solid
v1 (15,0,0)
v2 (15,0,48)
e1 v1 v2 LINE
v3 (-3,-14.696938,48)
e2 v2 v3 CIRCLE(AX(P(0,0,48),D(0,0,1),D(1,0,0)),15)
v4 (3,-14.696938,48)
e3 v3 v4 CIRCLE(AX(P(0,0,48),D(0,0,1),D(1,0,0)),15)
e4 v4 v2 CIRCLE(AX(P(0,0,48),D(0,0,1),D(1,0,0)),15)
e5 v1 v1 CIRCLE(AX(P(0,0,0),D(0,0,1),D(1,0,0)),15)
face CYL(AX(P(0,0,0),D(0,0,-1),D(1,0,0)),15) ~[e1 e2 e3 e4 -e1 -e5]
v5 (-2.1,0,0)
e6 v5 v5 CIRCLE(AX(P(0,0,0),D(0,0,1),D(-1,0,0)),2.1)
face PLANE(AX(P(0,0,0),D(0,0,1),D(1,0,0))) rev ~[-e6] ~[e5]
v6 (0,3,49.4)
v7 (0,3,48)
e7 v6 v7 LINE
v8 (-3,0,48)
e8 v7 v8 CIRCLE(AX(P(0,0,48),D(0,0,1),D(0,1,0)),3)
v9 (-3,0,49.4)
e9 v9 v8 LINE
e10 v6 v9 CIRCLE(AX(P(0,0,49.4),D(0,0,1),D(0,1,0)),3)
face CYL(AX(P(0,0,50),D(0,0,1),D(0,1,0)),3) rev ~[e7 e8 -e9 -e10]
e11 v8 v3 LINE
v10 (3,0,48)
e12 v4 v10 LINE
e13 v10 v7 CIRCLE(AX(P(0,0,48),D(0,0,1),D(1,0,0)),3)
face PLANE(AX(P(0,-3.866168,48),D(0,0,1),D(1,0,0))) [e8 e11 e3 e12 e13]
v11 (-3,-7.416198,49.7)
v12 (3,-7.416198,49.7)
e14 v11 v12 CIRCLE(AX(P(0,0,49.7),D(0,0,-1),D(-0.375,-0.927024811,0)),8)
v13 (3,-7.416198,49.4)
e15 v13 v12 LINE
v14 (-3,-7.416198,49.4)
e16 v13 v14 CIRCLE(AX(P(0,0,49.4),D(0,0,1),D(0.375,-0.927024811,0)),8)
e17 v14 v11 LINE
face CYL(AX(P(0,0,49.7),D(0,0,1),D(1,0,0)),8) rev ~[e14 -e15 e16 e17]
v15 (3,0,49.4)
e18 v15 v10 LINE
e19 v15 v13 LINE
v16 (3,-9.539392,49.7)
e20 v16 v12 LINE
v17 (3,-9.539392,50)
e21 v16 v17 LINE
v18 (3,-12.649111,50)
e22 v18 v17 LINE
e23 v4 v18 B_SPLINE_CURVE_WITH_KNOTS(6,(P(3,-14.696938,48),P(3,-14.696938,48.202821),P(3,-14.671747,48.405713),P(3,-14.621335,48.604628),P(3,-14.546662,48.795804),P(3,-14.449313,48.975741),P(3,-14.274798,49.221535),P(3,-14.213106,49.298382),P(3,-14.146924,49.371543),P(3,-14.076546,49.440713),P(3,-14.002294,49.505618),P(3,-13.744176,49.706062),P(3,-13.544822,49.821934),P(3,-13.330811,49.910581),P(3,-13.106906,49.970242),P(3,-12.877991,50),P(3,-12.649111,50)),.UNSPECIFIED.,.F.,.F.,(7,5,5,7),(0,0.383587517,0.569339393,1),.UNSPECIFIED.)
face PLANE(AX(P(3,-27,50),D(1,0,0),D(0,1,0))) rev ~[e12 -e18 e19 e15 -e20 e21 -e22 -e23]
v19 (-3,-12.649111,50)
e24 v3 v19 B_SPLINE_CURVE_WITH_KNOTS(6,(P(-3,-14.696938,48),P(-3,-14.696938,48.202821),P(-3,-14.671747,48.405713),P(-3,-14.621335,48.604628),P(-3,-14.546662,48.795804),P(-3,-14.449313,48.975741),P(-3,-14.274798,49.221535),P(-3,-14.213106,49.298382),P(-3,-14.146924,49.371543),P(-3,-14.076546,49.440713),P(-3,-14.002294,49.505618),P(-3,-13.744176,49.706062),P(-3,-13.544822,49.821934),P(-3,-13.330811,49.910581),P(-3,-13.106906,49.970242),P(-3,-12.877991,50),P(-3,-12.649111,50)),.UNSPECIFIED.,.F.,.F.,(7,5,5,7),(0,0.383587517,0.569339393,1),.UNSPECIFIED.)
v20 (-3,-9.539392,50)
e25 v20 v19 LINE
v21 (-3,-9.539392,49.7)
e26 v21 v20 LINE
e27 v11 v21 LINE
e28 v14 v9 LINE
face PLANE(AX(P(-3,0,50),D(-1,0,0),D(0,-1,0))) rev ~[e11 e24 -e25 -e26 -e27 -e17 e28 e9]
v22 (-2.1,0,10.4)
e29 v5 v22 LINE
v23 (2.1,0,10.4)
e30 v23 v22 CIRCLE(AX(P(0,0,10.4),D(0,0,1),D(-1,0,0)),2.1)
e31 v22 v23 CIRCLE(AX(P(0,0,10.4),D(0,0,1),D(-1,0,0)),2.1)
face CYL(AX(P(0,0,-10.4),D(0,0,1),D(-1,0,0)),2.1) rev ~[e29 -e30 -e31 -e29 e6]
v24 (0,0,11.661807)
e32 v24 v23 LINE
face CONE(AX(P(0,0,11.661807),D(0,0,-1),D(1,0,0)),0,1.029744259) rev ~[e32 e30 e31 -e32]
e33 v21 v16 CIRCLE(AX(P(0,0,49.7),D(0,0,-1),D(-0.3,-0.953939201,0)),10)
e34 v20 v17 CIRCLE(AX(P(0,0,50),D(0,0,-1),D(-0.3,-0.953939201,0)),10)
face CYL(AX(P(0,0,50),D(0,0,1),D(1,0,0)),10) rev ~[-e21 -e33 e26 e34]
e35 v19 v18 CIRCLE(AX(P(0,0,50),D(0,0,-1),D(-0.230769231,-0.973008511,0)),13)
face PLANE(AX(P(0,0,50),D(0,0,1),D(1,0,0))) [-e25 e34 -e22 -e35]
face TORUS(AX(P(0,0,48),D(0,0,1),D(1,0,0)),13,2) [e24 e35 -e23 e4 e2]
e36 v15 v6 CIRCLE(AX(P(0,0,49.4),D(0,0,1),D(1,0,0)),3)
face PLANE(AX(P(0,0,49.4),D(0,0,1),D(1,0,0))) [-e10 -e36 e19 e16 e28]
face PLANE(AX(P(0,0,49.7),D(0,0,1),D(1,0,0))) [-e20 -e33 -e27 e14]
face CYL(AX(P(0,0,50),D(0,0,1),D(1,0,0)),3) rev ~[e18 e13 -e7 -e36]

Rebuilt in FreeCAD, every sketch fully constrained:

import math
import FreeCAD as App
import Part
import Sketcher


def edges_at(feature, points):
    """Names of the edges that pass closest to the given points."""
    edges = feature.Shape.Edges
    near = lambda p: min(range(len(edges)), key=lambda i: edges[i].distToShape(Part.Vertex(*p))[0])
    return sorted({f"Edge{near(p) + 1}" for p in points})

doc = App.newDocument("Part")
params = doc.addObject("Spreadsheet::Sheet", "Params")
for row, (alias, value) in enumerate([
    ("sketch1_diameter", "30 mm"),
    ("pad1_length", "50 mm"),
    ("fillet_radius", "2 mm"),
    ("sketch2_diameter", "20 mm"),
    ("pocket1_length", "0.3 mm"),
    ("sketch3_radius", "3 mm"),
    ("sketch3_height", "27 mm"),
    ("pocket2_length", "2 mm"),
    ("sketch4_diameter", "4.2 mm"),
    ("hole_diameter", "4.2 mm"),
    ("hole_depth", "10.4 mm"),
    ("sketch5_diameter", "16 mm"),
    ("pocket3_length", "0.3 mm"),
], start=1):
    params.set(f"A{row}", alias)
    params.set(f"B{row}", "=" + value)
    params.setAlias(f"B{row}", alias)

body = doc.addObject("PartDesign::Body", "Body")

# Sketch on XY plane
sketch1 = body.newObject("Sketcher::SketchObject", "Sketch")
sketch1.AttachmentSupport = (doc.getObject("XY_Plane"), [""])
sketch1.MapMode = "FlatFace"
sketch1.addGeometry(Part.Circle(App.Vector(0, 0, 0), App.Vector(0, 0, 1), 15), False)
sketch1.addConstraint([
    Sketcher.Constraint("Coincident", 0, 3, -1, 1),
    Sketcher.Constraint("Diameter", 0, 30.0),
])
sketch1.setExpression("Constraints[1]", "Params.sketch1_diameter")
pad1 = body.newObject("PartDesign::Pad", "Pad")
pad1.Profile = sketch1
pad1.setExpression("Length", "Params.pad1_length")
doc.recompute()

fillet = body.newObject("PartDesign::Fillet", "Fillet")
fillet.Base = (pad1, edges_at(pad1, [(-15, 0, 50)]))
fillet.setExpression("Radius", "Params.fillet_radius")

# Sketch on XY plane
sketch2 = body.newObject("Sketcher::SketchObject", "Sketch001")
sketch2.AttachmentSupport = (doc.getObject("XY_Plane"), [""])
sketch2.MapMode = "FlatFace"
sketch2.AttachmentOffset = App.Placement(App.Vector(0, 0, 50), App.Rotation())
sketch2.addGeometry(Part.Circle(App.Vector(0, 0, 0), App.Vector(0, 0, 1), 10), False)
sketch2.addConstraint([
    Sketcher.Constraint("Coincident", 0, 3, -1, 1),
    Sketcher.Constraint("Diameter", 0, 20.0),
])
sketch2.setExpression("Constraints[1]", "Params.sketch2_diameter")
pocket1 = body.newObject("PartDesign::Pocket", "Pocket")
pocket1.Profile = sketch2
pocket1.setExpression("Length", "Params.pocket1_length")

# Sketch on XY plane
sketch3 = body.newObject("Sketcher::SketchObject", "Sketch002")
sketch3.AttachmentSupport = (doc.getObject("XY_Plane"), [""])
sketch3.MapMode = "FlatFace"
sketch3.AttachmentOffset = App.Placement(App.Vector(0, 0, 50), App.Rotation())
sketch3.addGeometry([
    Part.LineSegment(App.Vector(-3, 0, 0), App.Vector(-3, -27, 0)),  # 0
    Part.LineSegment(App.Vector(-3, -27, 0), App.Vector(3, -27, 0)),  # 1
    Part.LineSegment(App.Vector(3, -27, 0), App.Vector(3, 0, 0)),  # 2
    Part.ArcOfCircle(Part.Circle(App.Vector(0, 0, 0), App.Vector(0, 0, 1), 3), math.radians(0), math.radians(90)),  # 3
    Part.ArcOfCircle(Part.Circle(App.Vector(0, 0, 0), App.Vector(0, 0, 1), 3), math.radians(90), math.radians(180)),  # 4
], False)
sketch3.addConstraint([
    Sketcher.Constraint("Coincident", 0, 2, 1, 1),
    Sketcher.Constraint("Coincident", 1, 2, 2, 1),
    Sketcher.Constraint("Tangent", 2, 2, 3, 1),
    Sketcher.Constraint("Tangent", 3, 2, 4, 1),
    Sketcher.Constraint("Tangent", 4, 2, 0, 1),
    Sketcher.Constraint("Vertical", 0),
    Sketcher.Constraint("Horizontal", 1),
    Sketcher.Constraint("Vertical", 2),
    Sketcher.Constraint("Coincident", 3, 3, -1, 1),
    Sketcher.Constraint("Equal", 3, 4),
    Sketcher.Constraint("PointOnObject", 3, 2, -2),
    Sketcher.Constraint("Radius", 3, 3.0),
    Sketcher.Constraint("DistanceY", 0, 2, 0, 1, 27.0),
])
sketch3.setExpression("Constraints[11]", "Params.sketch3_radius")
sketch3.setExpression("Constraints[12]", "Params.sketch3_height")
pocket2 = body.newObject("PartDesign::Pocket", "Pocket001")
pocket2.Profile = sketch3
pocket2.setExpression("Length", "Params.pocket2_length")

# Sketch on XY plane
sketch4 = body.newObject("Sketcher::SketchObject", "Sketch003")
sketch4.AttachmentSupport = (doc.getObject("XY_Plane"), [""])
sketch4.MapMode = "FlatFace"
sketch4.addGeometry(Part.Circle(App.Vector(0, 0, 0), App.Vector(0, 0, 1), 2.1), False)
sketch4.addConstraint([
    Sketcher.Constraint("Coincident", 0, 3, -1, 1),
    Sketcher.Constraint("Diameter", 0, 4.2),
])
sketch4.setExpression("Constraints[1]", "Params.sketch4_diameter")
doc.recompute()
hole = body.newObject("PartDesign::Hole", "Hole")
hole.Profile = sketch4
hole.ThreadType = "None"
hole.setExpression("Diameter", "Params.hole_diameter")
hole.DepthType = "Dimension"
hole.setExpression("Depth", "Params.hole_depth")
hole.DrillPoint = "Angled"
hole.DrillPointAngle = 118
hole.Reversed = True

# Sketch on XY plane
sketch5 = body.newObject("Sketcher::SketchObject", "Sketch004")
sketch5.AttachmentSupport = (doc.getObject("XY_Plane"), [""])
sketch5.MapMode = "FlatFace"
sketch5.AttachmentOffset = App.Placement(App.Vector(0, 0, 49.7), App.Rotation())
sketch5.addGeometry(Part.Circle(App.Vector(0, 0, 0), App.Vector(0, 0, 1), 8), False)
sketch5.addConstraint([
    Sketcher.Constraint("Coincident", 0, 3, -1, 1),
    Sketcher.Constraint("Diameter", 0, 16.0),
])
sketch5.setExpression("Constraints[1]", "Params.sketch5_diameter")
pocket3 = body.newObject("PartDesign::Pocket", "Pocket002")
pocket3.Profile = sketch5
pocket3.setExpression("Length", "Params.pocket3_length")

doc.recompute()
